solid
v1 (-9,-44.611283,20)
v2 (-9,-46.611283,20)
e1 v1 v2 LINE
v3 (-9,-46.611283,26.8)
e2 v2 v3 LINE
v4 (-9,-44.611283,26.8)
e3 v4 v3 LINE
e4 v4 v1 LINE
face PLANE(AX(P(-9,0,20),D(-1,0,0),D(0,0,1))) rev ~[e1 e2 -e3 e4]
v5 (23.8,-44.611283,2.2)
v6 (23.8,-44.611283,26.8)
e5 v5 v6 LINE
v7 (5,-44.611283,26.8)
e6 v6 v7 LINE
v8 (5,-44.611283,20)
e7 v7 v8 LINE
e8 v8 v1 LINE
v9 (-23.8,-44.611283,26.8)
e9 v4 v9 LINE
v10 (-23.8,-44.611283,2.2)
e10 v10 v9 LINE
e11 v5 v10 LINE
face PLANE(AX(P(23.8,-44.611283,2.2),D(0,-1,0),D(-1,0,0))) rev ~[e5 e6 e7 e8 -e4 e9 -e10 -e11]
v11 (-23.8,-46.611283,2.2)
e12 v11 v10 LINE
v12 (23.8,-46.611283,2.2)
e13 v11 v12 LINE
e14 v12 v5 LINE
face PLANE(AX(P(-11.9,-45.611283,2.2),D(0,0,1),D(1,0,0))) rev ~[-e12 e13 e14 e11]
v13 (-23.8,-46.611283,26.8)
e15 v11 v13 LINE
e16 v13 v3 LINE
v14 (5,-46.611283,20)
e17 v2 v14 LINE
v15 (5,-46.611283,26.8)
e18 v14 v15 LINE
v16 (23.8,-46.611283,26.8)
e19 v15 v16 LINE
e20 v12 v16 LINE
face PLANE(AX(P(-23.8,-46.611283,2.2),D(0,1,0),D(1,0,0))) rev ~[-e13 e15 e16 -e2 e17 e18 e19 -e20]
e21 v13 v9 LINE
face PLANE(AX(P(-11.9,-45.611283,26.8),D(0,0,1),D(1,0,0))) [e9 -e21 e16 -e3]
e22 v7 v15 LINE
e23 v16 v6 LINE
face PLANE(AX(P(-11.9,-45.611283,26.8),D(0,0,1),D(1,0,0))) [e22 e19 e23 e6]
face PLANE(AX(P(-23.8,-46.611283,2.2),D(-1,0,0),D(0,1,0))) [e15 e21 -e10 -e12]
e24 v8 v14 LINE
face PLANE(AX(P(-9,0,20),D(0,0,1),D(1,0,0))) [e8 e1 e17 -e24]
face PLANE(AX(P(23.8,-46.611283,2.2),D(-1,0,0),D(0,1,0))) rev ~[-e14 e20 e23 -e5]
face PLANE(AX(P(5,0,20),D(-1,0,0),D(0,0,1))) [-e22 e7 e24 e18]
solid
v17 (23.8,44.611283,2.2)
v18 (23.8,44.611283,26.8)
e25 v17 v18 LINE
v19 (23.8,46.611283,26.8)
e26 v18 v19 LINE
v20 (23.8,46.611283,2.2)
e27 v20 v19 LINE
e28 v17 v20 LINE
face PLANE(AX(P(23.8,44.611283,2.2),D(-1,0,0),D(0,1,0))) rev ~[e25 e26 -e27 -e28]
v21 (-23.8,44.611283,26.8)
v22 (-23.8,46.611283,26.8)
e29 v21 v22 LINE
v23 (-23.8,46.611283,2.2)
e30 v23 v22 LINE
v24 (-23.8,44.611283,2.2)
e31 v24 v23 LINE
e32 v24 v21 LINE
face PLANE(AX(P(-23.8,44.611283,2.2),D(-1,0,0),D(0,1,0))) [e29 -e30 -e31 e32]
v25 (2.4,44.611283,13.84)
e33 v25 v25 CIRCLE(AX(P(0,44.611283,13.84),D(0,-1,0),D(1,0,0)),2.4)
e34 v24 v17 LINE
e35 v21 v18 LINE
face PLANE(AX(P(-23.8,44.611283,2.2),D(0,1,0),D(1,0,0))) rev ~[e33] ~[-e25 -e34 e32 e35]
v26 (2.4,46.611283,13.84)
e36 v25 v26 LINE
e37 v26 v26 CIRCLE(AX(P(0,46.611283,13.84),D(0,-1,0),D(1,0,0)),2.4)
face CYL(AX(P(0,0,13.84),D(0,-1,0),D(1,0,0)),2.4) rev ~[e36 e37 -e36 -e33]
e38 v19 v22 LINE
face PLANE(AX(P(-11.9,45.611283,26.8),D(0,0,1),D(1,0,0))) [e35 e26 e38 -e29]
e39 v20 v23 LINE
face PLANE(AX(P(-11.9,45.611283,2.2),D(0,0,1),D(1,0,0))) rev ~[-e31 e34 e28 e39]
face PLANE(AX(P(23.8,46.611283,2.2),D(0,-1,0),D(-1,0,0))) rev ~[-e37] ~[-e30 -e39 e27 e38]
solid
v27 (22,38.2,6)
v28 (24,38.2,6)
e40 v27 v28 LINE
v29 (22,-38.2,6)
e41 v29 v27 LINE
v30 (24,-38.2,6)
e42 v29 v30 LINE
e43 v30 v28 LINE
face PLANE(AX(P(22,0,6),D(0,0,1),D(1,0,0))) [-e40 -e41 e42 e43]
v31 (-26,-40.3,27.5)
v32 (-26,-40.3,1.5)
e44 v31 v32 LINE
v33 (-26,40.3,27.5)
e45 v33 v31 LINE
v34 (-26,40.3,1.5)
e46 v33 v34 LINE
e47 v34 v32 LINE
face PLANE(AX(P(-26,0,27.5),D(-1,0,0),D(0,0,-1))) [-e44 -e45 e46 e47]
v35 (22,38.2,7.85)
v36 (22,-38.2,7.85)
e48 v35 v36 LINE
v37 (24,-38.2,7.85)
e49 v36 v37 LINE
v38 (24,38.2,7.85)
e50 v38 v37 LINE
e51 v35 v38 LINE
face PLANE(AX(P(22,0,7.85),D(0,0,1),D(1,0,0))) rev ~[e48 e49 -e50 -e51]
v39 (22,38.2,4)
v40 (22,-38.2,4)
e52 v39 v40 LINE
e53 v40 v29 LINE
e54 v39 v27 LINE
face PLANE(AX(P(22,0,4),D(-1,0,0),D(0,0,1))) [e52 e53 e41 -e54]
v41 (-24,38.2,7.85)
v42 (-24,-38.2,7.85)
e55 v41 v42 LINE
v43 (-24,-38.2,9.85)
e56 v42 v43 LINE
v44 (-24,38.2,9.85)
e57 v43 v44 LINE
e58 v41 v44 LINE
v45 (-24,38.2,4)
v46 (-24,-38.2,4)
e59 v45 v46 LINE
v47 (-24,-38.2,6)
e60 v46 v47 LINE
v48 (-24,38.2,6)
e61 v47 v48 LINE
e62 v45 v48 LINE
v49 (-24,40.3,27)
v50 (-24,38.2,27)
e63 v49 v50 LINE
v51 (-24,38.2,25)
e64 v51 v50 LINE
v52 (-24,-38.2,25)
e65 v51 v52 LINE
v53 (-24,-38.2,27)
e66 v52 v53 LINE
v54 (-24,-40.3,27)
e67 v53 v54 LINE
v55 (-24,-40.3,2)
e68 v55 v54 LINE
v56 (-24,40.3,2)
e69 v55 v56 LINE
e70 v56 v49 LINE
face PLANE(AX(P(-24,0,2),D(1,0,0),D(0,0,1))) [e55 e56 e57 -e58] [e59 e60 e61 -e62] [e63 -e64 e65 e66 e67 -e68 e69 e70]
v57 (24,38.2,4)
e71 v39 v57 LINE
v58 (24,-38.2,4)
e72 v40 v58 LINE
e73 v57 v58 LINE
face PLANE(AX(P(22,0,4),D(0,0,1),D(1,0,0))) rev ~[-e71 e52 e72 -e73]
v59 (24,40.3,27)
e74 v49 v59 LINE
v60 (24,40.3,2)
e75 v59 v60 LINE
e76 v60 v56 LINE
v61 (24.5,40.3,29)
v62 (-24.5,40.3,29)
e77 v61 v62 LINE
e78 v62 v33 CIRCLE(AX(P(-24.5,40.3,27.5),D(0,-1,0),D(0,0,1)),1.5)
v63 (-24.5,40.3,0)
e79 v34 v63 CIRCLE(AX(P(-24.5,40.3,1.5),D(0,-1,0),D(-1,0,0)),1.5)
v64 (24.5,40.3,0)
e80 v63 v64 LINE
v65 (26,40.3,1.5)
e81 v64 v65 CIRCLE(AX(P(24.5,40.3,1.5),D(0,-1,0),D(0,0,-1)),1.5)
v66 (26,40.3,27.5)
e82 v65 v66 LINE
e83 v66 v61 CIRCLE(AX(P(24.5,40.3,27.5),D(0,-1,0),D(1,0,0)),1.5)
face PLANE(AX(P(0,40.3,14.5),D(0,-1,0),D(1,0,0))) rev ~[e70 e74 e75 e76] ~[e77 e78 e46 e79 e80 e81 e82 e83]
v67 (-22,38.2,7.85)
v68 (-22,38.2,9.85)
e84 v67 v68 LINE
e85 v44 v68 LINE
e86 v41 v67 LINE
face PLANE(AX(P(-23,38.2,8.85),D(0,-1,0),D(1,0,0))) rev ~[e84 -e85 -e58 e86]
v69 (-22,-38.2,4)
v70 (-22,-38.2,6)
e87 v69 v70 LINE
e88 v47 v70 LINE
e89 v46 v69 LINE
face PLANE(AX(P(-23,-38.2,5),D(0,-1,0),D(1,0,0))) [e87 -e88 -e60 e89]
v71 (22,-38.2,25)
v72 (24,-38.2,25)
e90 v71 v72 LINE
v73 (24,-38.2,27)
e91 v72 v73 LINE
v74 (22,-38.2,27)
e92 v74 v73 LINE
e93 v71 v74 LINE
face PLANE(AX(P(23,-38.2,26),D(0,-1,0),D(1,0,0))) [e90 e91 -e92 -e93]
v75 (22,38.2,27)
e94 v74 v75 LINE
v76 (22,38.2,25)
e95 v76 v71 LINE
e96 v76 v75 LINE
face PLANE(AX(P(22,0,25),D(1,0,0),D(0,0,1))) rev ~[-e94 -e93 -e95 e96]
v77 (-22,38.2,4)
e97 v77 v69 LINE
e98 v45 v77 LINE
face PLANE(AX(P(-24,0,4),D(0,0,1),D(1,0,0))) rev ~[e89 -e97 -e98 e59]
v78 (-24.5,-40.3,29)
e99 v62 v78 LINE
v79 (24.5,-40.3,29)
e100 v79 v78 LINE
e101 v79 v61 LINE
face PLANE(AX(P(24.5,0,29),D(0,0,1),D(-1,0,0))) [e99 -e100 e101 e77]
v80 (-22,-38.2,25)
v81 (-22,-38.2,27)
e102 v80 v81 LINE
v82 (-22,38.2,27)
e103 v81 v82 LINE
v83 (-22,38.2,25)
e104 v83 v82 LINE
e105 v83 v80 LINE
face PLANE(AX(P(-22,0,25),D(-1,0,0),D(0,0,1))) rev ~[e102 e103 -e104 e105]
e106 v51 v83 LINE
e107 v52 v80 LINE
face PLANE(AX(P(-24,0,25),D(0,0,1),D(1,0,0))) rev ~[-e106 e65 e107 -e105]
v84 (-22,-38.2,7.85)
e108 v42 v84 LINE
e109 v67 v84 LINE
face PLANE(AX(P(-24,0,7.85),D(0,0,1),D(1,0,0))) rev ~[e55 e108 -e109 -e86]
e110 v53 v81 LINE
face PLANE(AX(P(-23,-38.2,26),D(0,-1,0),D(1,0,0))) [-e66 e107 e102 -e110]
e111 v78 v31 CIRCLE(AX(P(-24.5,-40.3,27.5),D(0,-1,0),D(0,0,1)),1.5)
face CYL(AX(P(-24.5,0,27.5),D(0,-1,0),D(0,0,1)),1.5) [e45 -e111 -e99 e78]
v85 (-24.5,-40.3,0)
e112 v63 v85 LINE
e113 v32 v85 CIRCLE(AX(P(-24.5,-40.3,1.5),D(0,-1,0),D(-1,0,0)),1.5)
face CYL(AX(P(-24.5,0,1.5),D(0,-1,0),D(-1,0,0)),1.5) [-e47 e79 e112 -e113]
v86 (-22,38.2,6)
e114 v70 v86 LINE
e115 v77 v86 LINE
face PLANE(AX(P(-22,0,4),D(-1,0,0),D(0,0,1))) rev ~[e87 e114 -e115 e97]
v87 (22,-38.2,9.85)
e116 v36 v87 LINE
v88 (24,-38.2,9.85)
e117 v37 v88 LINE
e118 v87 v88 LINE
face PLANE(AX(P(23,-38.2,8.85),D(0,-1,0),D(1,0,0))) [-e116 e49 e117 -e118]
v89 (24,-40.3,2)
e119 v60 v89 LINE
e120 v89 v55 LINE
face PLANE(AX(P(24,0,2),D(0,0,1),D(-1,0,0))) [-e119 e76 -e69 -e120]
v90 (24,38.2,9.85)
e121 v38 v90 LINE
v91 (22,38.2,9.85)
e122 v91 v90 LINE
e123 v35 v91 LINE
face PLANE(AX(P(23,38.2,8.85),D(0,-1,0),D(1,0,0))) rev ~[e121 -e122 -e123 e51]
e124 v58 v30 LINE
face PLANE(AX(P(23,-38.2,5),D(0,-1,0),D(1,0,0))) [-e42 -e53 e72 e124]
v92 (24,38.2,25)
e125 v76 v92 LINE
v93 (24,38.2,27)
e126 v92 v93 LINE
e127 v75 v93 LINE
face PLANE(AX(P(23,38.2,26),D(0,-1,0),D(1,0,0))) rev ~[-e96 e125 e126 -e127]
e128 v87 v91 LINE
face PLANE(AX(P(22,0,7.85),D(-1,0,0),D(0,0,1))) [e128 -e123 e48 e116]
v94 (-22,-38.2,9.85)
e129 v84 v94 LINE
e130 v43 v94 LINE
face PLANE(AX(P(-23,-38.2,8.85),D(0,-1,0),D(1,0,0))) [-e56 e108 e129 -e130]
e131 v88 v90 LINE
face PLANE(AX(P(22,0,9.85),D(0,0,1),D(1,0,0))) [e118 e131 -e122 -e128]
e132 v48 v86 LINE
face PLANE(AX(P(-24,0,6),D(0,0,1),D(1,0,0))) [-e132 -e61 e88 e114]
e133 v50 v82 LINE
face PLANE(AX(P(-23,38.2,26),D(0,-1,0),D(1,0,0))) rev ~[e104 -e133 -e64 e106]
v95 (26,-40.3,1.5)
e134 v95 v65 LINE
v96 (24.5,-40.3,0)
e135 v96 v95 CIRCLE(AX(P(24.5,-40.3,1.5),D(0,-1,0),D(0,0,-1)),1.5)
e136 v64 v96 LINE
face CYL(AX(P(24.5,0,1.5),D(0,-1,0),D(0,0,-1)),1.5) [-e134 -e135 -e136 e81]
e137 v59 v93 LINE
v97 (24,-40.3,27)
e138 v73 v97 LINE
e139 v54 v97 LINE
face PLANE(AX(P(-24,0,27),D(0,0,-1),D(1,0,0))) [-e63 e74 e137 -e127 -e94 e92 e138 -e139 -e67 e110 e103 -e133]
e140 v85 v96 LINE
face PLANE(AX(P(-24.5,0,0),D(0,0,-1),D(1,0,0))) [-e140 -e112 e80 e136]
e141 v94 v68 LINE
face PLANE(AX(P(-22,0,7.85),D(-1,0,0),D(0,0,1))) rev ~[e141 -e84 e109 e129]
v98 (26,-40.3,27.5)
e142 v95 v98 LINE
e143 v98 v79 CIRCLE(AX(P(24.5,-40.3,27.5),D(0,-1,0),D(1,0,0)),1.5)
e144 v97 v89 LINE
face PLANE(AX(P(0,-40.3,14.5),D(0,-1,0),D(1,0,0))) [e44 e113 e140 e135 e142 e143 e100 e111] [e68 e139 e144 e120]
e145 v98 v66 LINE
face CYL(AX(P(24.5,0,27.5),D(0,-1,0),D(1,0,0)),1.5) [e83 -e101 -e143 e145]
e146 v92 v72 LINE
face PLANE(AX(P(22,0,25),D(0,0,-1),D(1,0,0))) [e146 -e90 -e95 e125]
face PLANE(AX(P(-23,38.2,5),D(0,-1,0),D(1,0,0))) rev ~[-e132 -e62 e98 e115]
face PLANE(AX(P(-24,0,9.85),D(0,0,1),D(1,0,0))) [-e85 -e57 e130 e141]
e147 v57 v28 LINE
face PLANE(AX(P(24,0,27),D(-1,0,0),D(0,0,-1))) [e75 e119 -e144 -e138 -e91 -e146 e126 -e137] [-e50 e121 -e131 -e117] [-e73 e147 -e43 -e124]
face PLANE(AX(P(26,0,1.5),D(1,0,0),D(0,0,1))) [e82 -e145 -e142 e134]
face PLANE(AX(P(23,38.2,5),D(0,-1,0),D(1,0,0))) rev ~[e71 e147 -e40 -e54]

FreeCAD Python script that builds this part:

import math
import FreeCAD as App
import Part
import Sketcher
from FreeCAD import Vector

doc = App.newDocument("Part")
body = doc.addObject("PartDesign::Body", "Body")

# Sketch on XZ plane
sketch1 = body.newObject("Sketcher::SketchObject", "Sketch")
sketch1.AttachmentSupport = (doc.getObject("XZ_Plane"), [""])
sketch1.MapMode = "FlatFace"
sketch1.addGeometry([
    Part.LineSegment(Vector(24.5, 29, 0), Vector(-24.5, 29, 0)),  # 0
    Part.ArcOfCircle(Part.Circle(Vector(-24.5, 27.5, 0), Vector(0, 0, 1), 1.5), math.radians(90), math.radians(180)),  # 1
    Part.LineSegment(Vector(-26, 27.5, 0), Vector(-26, 1.5, 0)),  # 2
    Part.ArcOfCircle(Part.Circle(Vector(-24.5, 1.5, 0), Vector(0, 0, 1), 1.5), math.radians(180), math.radians(270)),  # 3
    Part.LineSegment(Vector(-24.5, 0, 0), Vector(24.5, 0, 0)),  # 4
    Part.ArcOfCircle(Part.Circle(Vector(24.5, 1.5, 0), Vector(0, 0, 1), 1.5), math.radians(-90), math.radians(0)),  # 5
    Part.LineSegment(Vector(26, 1.5, 0), Vector(26, 27.5, 0)),  # 6
    Part.ArcOfCircle(Part.Circle(Vector(24.5, 27.5, 0), Vector(0, 0, 1), 1.5), math.radians(0), math.radians(90)),  # 7
    Part.LineSegment(Vector(-24, 2, 0), Vector(-24, 27, 0)),  # 8
    Part.LineSegment(Vector(-24, 27, 0), Vector(24, 27, 0)),  # 9
    Part.LineSegment(Vector(24, 27, 0), Vector(24, 2, 0)),  # 10
    Part.LineSegment(Vector(24, 2, 0), Vector(-24, 2, 0)),  # 11
], False)
sketch1.addConstraint([
    Sketcher.Constraint("Tangent", 0, 2, 1, 1),
    Sketcher.Constraint("Tangent", 1, 2, 2, 1),
    Sketcher.Constraint("Tangent", 2, 2, 3, 1),
    Sketcher.Constraint("Tangent", 3, 2, 4, 1),
    Sketcher.Constraint("Tangent", 4, 2, 5, 1),
    Sketcher.Constraint("Tangent", 5, 2, 6, 1),
    Sketcher.Constraint("Tangent", 6, 2, 7, 1),
    Sketcher.Constraint("Tangent", 7, 2, 0, 1),
    Sketcher.Constraint("Coincident", 8, 2, 9, 1),
    Sketcher.Constraint("Coincident", 9, 2, 10, 1),
    Sketcher.Constraint("Coincident", 10, 2, 11, 1),
    Sketcher.Constraint("Coincident", 11, 2, 8, 1),
    Sketcher.Constraint("Horizontal", 0),
    Sketcher.Constraint("Vertical", 2),
    Sketcher.Constraint("Horizontal", 4),
    Sketcher.Constraint("Vertical", 6),
    Sketcher.Constraint("Vertical", 8),
    Sketcher.Constraint("Horizontal", 9),
    Sketcher.Constraint("Vertical", 10),
    Sketcher.Constraint("Horizontal", 11),
    Sketcher.Constraint("Equal", 1, 3),
    Sketcher.Constraint("Equal", 3, 5),
    Sketcher.Constraint("Equal", 5, 7),
    Sketcher.Constraint("Symmetric", 3, 2, 4, 2, -1, 1),
    Sketcher.Constraint("Radius", 1, 1.5),
    Sketcher.Constraint("DistanceX", 0, 2, 0, 1, 49.0),
    Sketcher.Constraint("DistanceX", 9, 1, 9, 2, 48.0),
    Sketcher.Constraint("DistanceY", 2, 2, 2, 1, 26.0),
    Sketcher.Constraint("DistanceY", 8, 1, 8, 2, 25.0),
    Sketcher.Constraint("DistanceX", 8, 2, -1, 1, 24.0),
    Sketcher.Constraint("DistanceY", -1, 1, 8, 2, 27.0),
])
pad1 = body.newObject("PartDesign::Pad", "Pad")
pad1.Profile = sketch1
pad1.Length = 80.6
pad1.Midplane = True

# Sketch on XZ plane
sketch2 = body.newObject("Sketcher::SketchObject", "Sketch001")
sketch2.AttachmentSupport = (doc.getObject("XZ_Plane"), [""])
sketch2.MapMode = "FlatFace"
sketch2.addGeometry([
    Part.LineSegment(Vector(-24, 9.85, 0), Vector(-24, 7.85, 0)),  # 0
    Part.LineSegment(Vector(-24, 7.85, 0), Vector(-22, 7.85, 0)),  # 1
    Part.LineSegment(Vector(-22, 7.85, 0), Vector(-22, 9.85, 0)),  # 2
    Part.LineSegment(Vector(-22, 9.85, 0), Vector(-24, 9.85, 0)),  # 3
    Part.LineSegment(Vector(-24, 6, 0), Vector(-24, 4, 0)),  # 4
    Part.LineSegment(Vector(-24, 4, 0), Vector(-22, 4, 0)),  # 5
    Part.LineSegment(Vector(-22, 4, 0), Vector(-22, 6, 0)),  # 6
    Part.LineSegment(Vector(-22, 6, 0), Vector(-24, 6, 0)),  # 7
    Part.LineSegment(Vector(22, 9.85, 0), Vector(22, 7.85, 0)),  # 8
    Part.LineSegment(Vector(22, 7.85, 0), Vector(24, 7.85, 0)),  # 9
    Part.LineSegment(Vector(24, 7.85, 0), Vector(24, 9.85, 0)),  # 10
    Part.LineSegment(Vector(24, 9.85, 0), Vector(22, 9.85, 0)),  # 11
    Part.LineSegment(Vector(22, 6, 0), Vector(22, 4, 0)),  # 12
    Part.LineSegment(Vector(22, 4, 0), Vector(24, 4, 0)),  # 13
    Part.LineSegment(Vector(24, 4, 0), Vector(24, 6, 0)),  # 14
    Part.LineSegment(Vector(24, 6, 0), Vector(22, 6, 0)),  # 15
    Part.LineSegment(Vector(-24, 27, 0), Vector(-24, 25, 0)),  # 16
    Part.LineSegment(Vector(-24, 25, 0), Vector(-22, 25, 0)),  # 17
    Part.LineSegment(Vector(-22, 25, 0), Vector(-22, 27, 0)),  # 18
    Part.LineSegment(Vector(-22, 27, 0), Vector(-24, 27, 0)),  # 19
    Part.LineSegment(Vector(22, 27, 0), Vector(22, 25, 0)),  # 20
    Part.LineSegment(Vector(22, 25, 0), Vector(24, 25, 0)),  # 21
    Part.LineSegment(Vector(24, 25, 0), Vector(24, 27, 0)),  # 22
    Part.LineSegment(Vector(24, 27, 0), Vector(22, 27, 0)),  # 23
], False)
sketch2.addConstraint([
    Sketcher.Constraint("Coincident", 0, 2, 1, 1),
    Sketcher.Constraint("Coincident", 1, 2, 2, 1),
    Sketcher.Constraint("Coincident", 2, 2, 3, 1),
    Sketcher.Constraint("Coincident", 3, 2, 0, 1),
    Sketcher.Constraint("Coincident", 4, 2, 5, 1),
    Sketcher.Constraint("Coincident", 5, 2, 6, 1),
    Sketcher.Constraint("Coincident", 6, 2, 7, 1),
    Sketcher.Constraint("Coincident", 7, 2, 4, 1),
    Sketcher.Constraint("Coincident", 8, 2, 9, 1),
    Sketcher.Constraint("Coincident", 9, 2, 10, 1),
    Sketcher.Constraint("Coincident", 10, 2, 11, 1),
    Sketcher.Constraint("Coincident", 11, 2, 8, 1),
    Sketcher.Constraint("Coincident", 12, 2, 13, 1),
    Sketcher.Constraint("Coincident", 13, 2, 14, 1),
    Sketcher.Constraint("Coincident", 14, 2, 15, 1),
    Sketcher.Constraint("Coincident", 15, 2, 12, 1),
    Sketcher.Constraint("Coincident", 16, 2, 17, 1),
    Sketcher.Constraint("Coincident", 17, 2, 18, 1),
    Sketcher.Constraint("Coincident", 18, 2, 19, 1),
    Sketcher.Constraint("Coincident", 19, 2, 16, 1),
    Sketcher.Constraint("Coincident", 20, 2, 21, 1),
    Sketcher.Constraint("Coincident", 21, 2, 22, 1),
    Sketcher.Constraint("Coincident", 22, 2, 23, 1),
    Sketcher.Constraint("Coincident", 23, 2, 20, 1),
    Sketcher.Constraint("Vertical", 0),
    Sketcher.Constraint("Horizontal", 1),
    Sketcher.Constraint("Vertical", 2),
    Sketcher.Constraint("Horizontal", 3),
    Sketcher.Constraint("Vertical", 4),
    Sketcher.Constraint("Horizontal", 5),
    Sketcher.Constraint("Vertical", 6),
    Sketcher.Constraint("Horizontal", 7),
    Sketcher.Constraint("Vertical", 8),
    Sketcher.Constraint("Horizontal", 9),
    Sketcher.Constraint("Vertical", 10),
    Sketcher.Constraint("Horizontal", 11),
    Sketcher.Constraint("Vertical", 12),
    Sketcher.Constraint("Horizontal", 13),
    Sketcher.Constraint("Vertical", 14),
    Sketcher.Constraint("Horizontal", 15),
    Sketcher.Constraint("Vertical", 16),
    Sketcher.Constraint("Horizontal", 17),
    Sketcher.Constraint("Vertical", 18),
    Sketcher.Constraint("Horizontal", 19),
    Sketcher.Constraint("Vertical", 20),
    Sketcher.Constraint("Horizontal", 21),
    Sketcher.Constraint("Vertical", 22),
    Sketcher.Constraint("Horizontal", 23),
    Sketcher.Constraint("Symmetric", 1, 2, 8, 2, -2),
    Sketcher.Constraint("Symmetric", 3, 2, 10, 2, -2),
    Sketcher.Constraint("Symmetric", 5, 2, 12, 2, -2),
    Sketcher.Constraint("Symmetric", 7, 2, 14, 2, -2),
    Sketcher.Constraint("Symmetric", 17, 2, 20, 2, -2),
    Sketcher.Constraint("Symmetric", 19, 2, 22, 2, -2),
    Sketcher.Constraint("Vertical", 3, 2, 4, 2),
    Sketcher.Constraint("Vertical", 2, 2, 5, 2),
    Sketcher.Constraint("Vertical", 7, 2, 16, 2),
    Sketcher.Constraint("Vertical", 6, 2, 17, 2),
    Sketcher.Constraint("Equal", 23, 0),
    Sketcher.Constraint("Equal", 2, 4),
    Sketcher.Constraint("Equal", 14, 16),
    Sketcher.Constraint("DistanceX", 1, 1, 1, 2, 2.0),
    Sketcher.Constraint("DistanceX", 0, 2, -1, 1, 24.0),
    Sketcher.Constraint("DistanceY", -1, 1, 4, 2, 4.0),
    Sketcher.Constraint("DistanceY", -1, 1, 16, 2, 25.0),
    Sketcher.Constraint("DistanceY", -1, 1, 0, 2, 7.85),
])
pad2 = body.newObject("PartDesign::Pad", "Pad001")
pad2.Profile = sketch2
pad2.Length = 76.4
pad2.Midplane = True
body2 = doc.addObject("PartDesign::Body", "Body001")

# Sketch on XY plane
sketch3 = body2.newObject("Sketcher::SketchObject", "Sketch002")
sketch3.AttachmentSupport = (doc.getObject("XY_Plane001"), [""])
sketch3.MapMode = "FlatFace"
sketch3.AttachmentOffset = App.Placement(Vector(0, 0, 2.2), App.Rotation())
sketch3.addGeometry([
    Part.LineSegment(Vector(-23.8, -44.611283, 0), Vector(-23.8, -46.611283, 0)),
    Part.LineSegment(Vector(-23.8, -46.611283, 0), Vector(23.8, -46.611283, 0)),
    Part.LineSegment(Vector(23.8, -46.611283, 0), Vector(23.8, -44.611283, 0)),
    Part.LineSegment(Vector(23.8, -44.611283, 0), Vector(-23.8, -44.611283, 0)),
], False)
sketch3.addConstraint([
    Sketcher.Constraint("Coincident", 0, 2, 1, 1),
    Sketcher.Constraint("Coincident", 1, 2, 2, 1),
    Sketcher.Constraint("Coincident", 2, 2, 3, 1),
    Sketcher.Constraint("Coincident", 3, 2, 0, 1),
    Sketcher.Constraint("Vertical", 0),
    Sketcher.Constraint("Horizontal", 1),
    Sketcher.Constraint("Vertical", 2),
    Sketcher.Constraint("Horizontal", 3),
    Sketcher.Constraint("DistanceY", 0, 2, 0, 1, 2.0),
    Sketcher.Constraint("DistanceX", 1, 1, 1, 2, 47.6),
    Sketcher.Constraint("DistanceX", 0, 2, -1, 1, 23.8),
    Sketcher.Constraint("DistanceY", 0, 2, -1, 1, 46.611283),
])
pad3 = body2.newObject("PartDesign::Pad", "Pad002")
pad3.Profile = sketch3
pad3.Length = 24.6

# Sketch on XZ plane
sketch4 = body2.newObject("Sketcher::SketchObject", "Sketch003")
sketch4.AttachmentSupport = (doc.getObject("XZ_Plane001"), [""])
sketch4.MapMode = "FlatFace"
sketch4.addGeometry([
    Part.LineSegment(Vector(-9, 26.9, 0), Vector(-9, 20, 0)),
    Part.LineSegment(Vector(-9, 20, 0), Vector(5, 20, 0)),
    Part.LineSegment(Vector(5, 20, 0), Vector(5, 26.9, 0)),
    Part.LineSegment(Vector(5, 26.9, 0), Vector(-9, 26.9, 0)),
], False)
sketch4.addConstraint([
    Sketcher.Constraint("Coincident", 0, 2, 1, 1),
    Sketcher.Constraint("Coincident", 1, 2, 2, 1),
    Sketcher.Constraint("Coincident", 2, 2, 3, 1),
    Sketcher.Constraint("Coincident", 3, 2, 0, 1),
    Sketcher.Constraint("Vertical", 0),
    Sketcher.Constraint("Horizontal", 1),
    Sketcher.Constraint("Vertical", 2),
    Sketcher.Constraint("Horizontal", 3),
    Sketcher.Constraint("DistanceX", 1, 1, 1, 2, 14.0),
    Sketcher.Constraint("DistanceY", 0, 2, 0, 1, 6.9),
    Sketcher.Constraint("DistanceX", 0, 2, -1, 1, 9.0),
    Sketcher.Constraint("DistanceY", -1, 1, 0, 2, 20.0),
])
pocket1 = body2.newObject("PartDesign::Pocket", "Pocket")
pocket1.Profile = sketch4
pocket1.Length = 46.8
pocket1.Reversed = True
body3 = doc.addObject("PartDesign::Body", "Body002")

# Sketch on XY plane
sketch5 = body3.newObject("Sketcher::SketchObject", "Sketch004")
sketch5.AttachmentSupport = (doc.getObject("XY_Plane002"), [""])
sketch5.MapMode = "FlatFace"
sketch5.AttachmentOffset = App.Placement(Vector(0, 0, 2.2), App.Rotation())
sketch5.addGeometry([
    Part.LineSegment(Vector(-23.8, 46.611283, 0), Vector(-23.8, 44.611283, 0)),
    Part.LineSegment(Vector(-23.8, 44.611283, 0), Vector(23.8, 44.611283, 0)),
    Part.LineSegment(Vector(23.8, 44.611283, 0), Vector(23.8, 46.611283, 0)),
    Part.LineSegment(Vector(23.8, 46.611283, 0), Vector(-23.8, 46.611283, 0)),
], False)
sketch5.addConstraint([
    Sketcher.Constraint("Coincident", 0, 2, 1, 1),
    Sketcher.Constraint("Coincident", 1, 2, 2, 1),
    Sketcher.Constraint("Coincident", 2, 2, 3, 1),
    Sketcher.Constraint("Coincident", 3, 2, 0, 1),
    Sketcher.Constraint("Vertical", 0),
    Sketcher.Constraint("Horizontal", 1),
    Sketcher.Constraint("Vertical", 2),
    Sketcher.Constraint("Horizontal", 3),
    Sketcher.Constraint("DistanceY", 0, 2, 0, 1, 2.0),
    Sketcher.Constraint("DistanceX", 1, 1, 1, 2, 47.6),
    Sketcher.Constraint("DistanceX", 0, 2, -1, 1, 23.8),
    Sketcher.Constraint("DistanceY", -1, 1, 0, 2, 44.611283),
])
pad4 = body3.newObject("PartDesign::Pad", "Pad003")
pad4.Profile = sketch5
pad4.Length = 24.6

# Sketch on XZ plane
sketch6 = body3.newObject("Sketcher::SketchObject", "Sketch005")
sketch6.AttachmentSupport = (doc.getObject("XZ_Plane002"), [""])
sketch6.MapMode = "FlatFace"
sketch6.addGeometry(Part.Circle(Vector(0, 13.84, 0), Vector(0, 0, 1), 2.4), False)
sketch6.addConstraint([
    Sketcher.Constraint("PointOnObject", 0, 3, -2),
    Sketcher.Constraint("Diameter", 0, 4.8),
    Sketcher.Constraint("DistanceY", -1, 1, 0, 3, 13.84),
])
pocket2 = body3.newObject("PartDesign::Pocket", "Pocket001")
pocket2.Profile = sketch6
pocket2.Length = 48

doc.recompute()
